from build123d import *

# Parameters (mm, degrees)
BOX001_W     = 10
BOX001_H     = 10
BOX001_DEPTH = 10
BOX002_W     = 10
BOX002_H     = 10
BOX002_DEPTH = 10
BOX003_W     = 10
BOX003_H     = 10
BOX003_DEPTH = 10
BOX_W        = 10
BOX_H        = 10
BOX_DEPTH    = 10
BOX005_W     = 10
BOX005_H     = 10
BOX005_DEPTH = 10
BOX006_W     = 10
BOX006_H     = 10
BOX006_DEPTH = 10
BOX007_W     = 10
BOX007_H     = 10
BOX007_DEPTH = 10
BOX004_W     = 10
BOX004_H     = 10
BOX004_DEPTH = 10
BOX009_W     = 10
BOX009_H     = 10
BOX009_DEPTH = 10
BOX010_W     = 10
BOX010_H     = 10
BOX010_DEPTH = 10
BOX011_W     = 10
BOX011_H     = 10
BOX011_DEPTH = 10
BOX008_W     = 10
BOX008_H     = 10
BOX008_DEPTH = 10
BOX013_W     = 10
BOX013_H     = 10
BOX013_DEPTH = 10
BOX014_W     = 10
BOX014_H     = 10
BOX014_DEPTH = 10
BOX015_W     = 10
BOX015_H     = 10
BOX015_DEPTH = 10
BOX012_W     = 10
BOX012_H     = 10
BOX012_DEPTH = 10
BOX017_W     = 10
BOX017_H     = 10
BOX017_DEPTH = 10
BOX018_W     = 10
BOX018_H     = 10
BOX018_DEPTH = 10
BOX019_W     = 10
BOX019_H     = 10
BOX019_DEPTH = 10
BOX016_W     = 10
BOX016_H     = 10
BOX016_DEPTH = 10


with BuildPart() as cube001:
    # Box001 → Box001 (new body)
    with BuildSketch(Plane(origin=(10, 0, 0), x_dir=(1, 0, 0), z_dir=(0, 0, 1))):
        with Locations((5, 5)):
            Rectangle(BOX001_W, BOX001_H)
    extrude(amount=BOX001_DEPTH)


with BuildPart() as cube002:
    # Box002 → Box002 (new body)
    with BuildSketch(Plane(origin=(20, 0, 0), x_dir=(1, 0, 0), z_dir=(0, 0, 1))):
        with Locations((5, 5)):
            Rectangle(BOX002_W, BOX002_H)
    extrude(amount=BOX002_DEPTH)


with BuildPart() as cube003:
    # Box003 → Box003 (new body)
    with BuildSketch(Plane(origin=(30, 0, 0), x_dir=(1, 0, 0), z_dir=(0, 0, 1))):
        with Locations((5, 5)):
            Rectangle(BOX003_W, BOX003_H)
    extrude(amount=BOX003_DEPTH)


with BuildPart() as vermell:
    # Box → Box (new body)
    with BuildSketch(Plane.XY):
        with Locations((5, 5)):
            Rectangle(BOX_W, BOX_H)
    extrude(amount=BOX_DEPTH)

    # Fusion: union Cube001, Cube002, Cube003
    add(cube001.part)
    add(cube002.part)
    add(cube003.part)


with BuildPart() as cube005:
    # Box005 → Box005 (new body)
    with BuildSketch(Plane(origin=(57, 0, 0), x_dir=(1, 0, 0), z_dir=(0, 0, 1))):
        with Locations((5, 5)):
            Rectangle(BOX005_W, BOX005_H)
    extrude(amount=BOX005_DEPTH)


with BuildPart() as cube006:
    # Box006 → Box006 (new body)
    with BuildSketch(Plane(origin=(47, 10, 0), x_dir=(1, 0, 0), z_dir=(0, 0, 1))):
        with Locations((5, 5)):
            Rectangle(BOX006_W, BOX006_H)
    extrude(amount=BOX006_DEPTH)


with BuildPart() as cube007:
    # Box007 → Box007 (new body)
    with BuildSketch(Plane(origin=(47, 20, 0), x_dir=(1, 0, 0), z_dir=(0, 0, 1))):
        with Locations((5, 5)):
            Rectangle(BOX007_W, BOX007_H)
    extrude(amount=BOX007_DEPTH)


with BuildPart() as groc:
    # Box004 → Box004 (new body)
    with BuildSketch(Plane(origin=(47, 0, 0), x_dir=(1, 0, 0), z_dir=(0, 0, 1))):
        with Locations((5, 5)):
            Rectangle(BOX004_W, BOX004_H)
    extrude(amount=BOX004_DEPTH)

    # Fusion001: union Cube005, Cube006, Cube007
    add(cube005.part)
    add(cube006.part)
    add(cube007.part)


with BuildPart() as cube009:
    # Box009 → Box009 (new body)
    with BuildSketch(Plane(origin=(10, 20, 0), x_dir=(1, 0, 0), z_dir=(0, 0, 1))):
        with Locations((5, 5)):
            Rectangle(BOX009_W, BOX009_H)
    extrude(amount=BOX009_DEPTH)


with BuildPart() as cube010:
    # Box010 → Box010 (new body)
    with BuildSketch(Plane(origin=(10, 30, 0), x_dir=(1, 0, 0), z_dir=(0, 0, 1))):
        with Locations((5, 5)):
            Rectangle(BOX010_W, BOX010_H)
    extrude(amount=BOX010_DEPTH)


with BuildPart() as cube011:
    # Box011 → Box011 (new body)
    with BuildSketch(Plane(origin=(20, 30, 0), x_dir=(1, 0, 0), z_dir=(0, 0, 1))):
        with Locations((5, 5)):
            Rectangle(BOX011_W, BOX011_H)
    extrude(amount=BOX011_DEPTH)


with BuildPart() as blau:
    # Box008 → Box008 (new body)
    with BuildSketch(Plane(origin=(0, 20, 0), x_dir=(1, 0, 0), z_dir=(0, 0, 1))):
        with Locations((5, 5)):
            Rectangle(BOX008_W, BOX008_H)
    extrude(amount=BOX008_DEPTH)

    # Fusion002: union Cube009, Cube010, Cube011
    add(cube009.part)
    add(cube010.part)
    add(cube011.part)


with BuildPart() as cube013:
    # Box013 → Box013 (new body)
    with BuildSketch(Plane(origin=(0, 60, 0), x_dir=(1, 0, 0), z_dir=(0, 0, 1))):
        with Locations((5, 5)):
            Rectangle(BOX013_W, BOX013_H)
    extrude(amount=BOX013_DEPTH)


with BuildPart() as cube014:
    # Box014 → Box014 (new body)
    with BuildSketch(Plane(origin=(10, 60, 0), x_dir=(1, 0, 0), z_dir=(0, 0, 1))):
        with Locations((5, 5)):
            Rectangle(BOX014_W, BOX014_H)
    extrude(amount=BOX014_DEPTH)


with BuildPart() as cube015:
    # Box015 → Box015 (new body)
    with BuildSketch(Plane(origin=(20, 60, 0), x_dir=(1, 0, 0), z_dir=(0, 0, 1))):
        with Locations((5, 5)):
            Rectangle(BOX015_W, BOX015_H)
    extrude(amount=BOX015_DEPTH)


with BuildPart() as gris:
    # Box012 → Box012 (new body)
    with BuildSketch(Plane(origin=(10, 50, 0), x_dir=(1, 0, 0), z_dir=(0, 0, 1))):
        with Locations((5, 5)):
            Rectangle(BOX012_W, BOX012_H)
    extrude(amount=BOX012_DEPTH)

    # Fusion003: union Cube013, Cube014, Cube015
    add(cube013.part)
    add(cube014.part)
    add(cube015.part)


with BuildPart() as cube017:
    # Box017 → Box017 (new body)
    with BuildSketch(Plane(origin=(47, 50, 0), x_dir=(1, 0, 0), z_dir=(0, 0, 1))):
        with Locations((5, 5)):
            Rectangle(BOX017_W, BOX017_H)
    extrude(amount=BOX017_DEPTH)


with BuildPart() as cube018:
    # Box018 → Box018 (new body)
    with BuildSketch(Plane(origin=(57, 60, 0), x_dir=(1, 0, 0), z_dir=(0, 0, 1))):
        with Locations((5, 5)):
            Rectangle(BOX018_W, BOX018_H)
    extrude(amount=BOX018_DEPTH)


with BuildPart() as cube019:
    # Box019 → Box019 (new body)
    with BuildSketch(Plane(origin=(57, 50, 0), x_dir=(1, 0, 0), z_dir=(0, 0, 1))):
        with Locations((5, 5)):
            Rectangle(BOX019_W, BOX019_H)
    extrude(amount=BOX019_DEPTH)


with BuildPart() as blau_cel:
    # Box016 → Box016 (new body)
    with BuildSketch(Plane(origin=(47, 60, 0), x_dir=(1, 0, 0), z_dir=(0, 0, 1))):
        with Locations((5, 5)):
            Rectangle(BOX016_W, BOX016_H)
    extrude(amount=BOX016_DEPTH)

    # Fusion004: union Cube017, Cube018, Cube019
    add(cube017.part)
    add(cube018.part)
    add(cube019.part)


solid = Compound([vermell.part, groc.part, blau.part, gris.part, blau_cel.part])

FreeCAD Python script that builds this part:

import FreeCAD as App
import Part
import Sketcher
from FreeCAD import Vector
Q = App.Units.Quantity


def add_polygon(sketch, points):
    """Adds a closed chain of lines whose ends are joined by coincident constraints."""
    first, n = sketch.GeometryCount, len(points)
    for a, b in zip(points, points[1:] + points[:1]):
        sketch.addGeometry(Part.LineSegment(App.Vector(*a, 0), App.Vector(*b, 0)), False)
    for i in range(n):
        sketch.addConstraint(Sketcher.Constraint("Coincident", first + i, 2, first + (i + 1) % n, 1))

doc = App.newDocument("Part")
body = doc.addObject("PartDesign::Body", "Body")

# Sketch on XY plane
sketch1 = body.newObject("Sketcher::SketchObject", "Sketch")
sketch1.AttachmentSupport = (doc.getObject("XY_Plane"), [""])
sketch1.MapMode = "FlatFace"
add_polygon(sketch1, [(10, 10), (10, 0), (20, 0), (20, 10)])  # lines 0-3
sketch1.addConstraint([
    Sketcher.Constraint("Vertical", 0),
    Sketcher.Constraint("Horizontal", 1),
    Sketcher.Constraint("Vertical", 2),
    Sketcher.Constraint("Horizontal", 3),
    Sketcher.Constraint("PointOnObject", 0, 2, -1),
    Sketcher.Constraint("Equal", 3, 0),
    Sketcher.Constraint("DistanceX", 1, 1, 1, 2, Q("10 mm")),
    Sketcher.Constraint("DistanceX", -1, 1, 0, 2, Q("10 mm")),
])
pad1 = body.newObject("PartDesign::Pad", "Pad")
pad1.Profile = sketch1
pad1.Length = 10
body2 = doc.addObject("PartDesign::Body", "Body001")

# Sketch on XY plane
sketch2 = body2.newObject("Sketcher::SketchObject", "Sketch001")
sketch2.AttachmentSupport = (doc.getObject("XY_Plane001"), [""])
sketch2.MapMode = "FlatFace"
add_polygon(sketch2, [(20, 10), (20, 0), (30, 0), (30, 10)])  # lines 0-3
sketch2.addConstraint([
    Sketcher.Constraint("Vertical", 0),
    Sketcher.Constraint("Horizontal", 1),
    Sketcher.Constraint("Vertical", 2),
    Sketcher.Constraint("Horizontal", 3),
    Sketcher.Constraint("PointOnObject", 0, 2, -1),
    Sketcher.Constraint("Equal", 3, 0),
    Sketcher.Constraint("DistanceX", 1, 1, 1, 2, Q("10 mm")),
    Sketcher.Constraint("DistanceX", -1, 1, 0, 2, Q("20 mm")),
])
pad2 = body2.newObject("PartDesign::Pad", "Pad001")
pad2.Profile = sketch2
pad2.Length = 10
body3 = doc.addObject("PartDesign::Body", "Body002")

# Sketch on XY plane
sketch3 = body3.newObject("Sketcher::SketchObject", "Sketch002")
sketch3.AttachmentSupport = (doc.getObject("XY_Plane002"), [""])
sketch3.MapMode = "FlatFace"
add_polygon(sketch3, [(30, 10), (30, 0), (40, 0), (40, 10)])  # lines 0-3
sketch3.addConstraint([
    Sketcher.Constraint("Vertical", 0),
    Sketcher.Constraint("Horizontal", 1),
    Sketcher.Constraint("Vertical", 2),
    Sketcher.Constraint("Horizontal", 3),
    Sketcher.Constraint("PointOnObject", 0, 2, -1),
    Sketcher.Constraint("Equal", 3, 0),
    Sketcher.Constraint("DistanceX", 1, 1, 1, 2, Q("10 mm")),
    Sketcher.Constraint("DistanceX", -1, 1, 0, 2, Q("30 mm")),
])
pad3 = body3.newObject("PartDesign::Pad", "Pad002")
pad3.Profile = sketch3
pad3.Length = 10
body4 = doc.addObject("PartDesign::Body", "Body003")

# Sketch on XY plane
sketch4 = body4.newObject("Sketcher::SketchObject", "Sketch003")
sketch4.AttachmentSupport = (doc.getObject("XY_Plane003"), [""])
sketch4.MapMode = "FlatFace"
add_polygon(sketch4, [(0, 10), (0, 0), (10, 0), (10, 10)])  # lines 0-3
sketch4.addConstraint([
    Sketcher.Constraint("Vertical", 0),
    Sketcher.Constraint("Horizontal", 1),
    Sketcher.Constraint("Vertical", 2),
    Sketcher.Constraint("Horizontal", 3),
    Sketcher.Constraint("Coincident", 0, 2, -1, 1),
    Sketcher.Constraint("Equal", 3, 0),
    Sketcher.Constraint("DistanceX", 1, 1, 1, 2, Q("10 mm")),
])
pad4 = body4.newObject("PartDesign::Pad", "Pad003")
pad4.Profile = sketch4
pad4.Length = 10
doc.recompute()

boolean = body4.newObject("PartDesign::Boolean", "Boolean")
boolean.Type = "Fuse"
boolean.addObjects([body])
doc.recompute()

boolean2 = body4.newObject("PartDesign::Boolean", "Boolean001")
boolean2.Type = "Fuse"
boolean2.addObjects([body2])
doc.recompute()

boolean3 = body4.newObject("PartDesign::Boolean", "Boolean002")
boolean3.Type = "Fuse"
boolean3.addObjects([body3])
body5 = doc.addObject("PartDesign::Body", "Body004")

# Sketch on XY plane
sketch5 = body5.newObject("Sketcher::SketchObject", "Sketch004")
sketch5.AttachmentSupport = (doc.getObject("XY_Plane004"), [""])
sketch5.MapMode = "FlatFace"
add_polygon(sketch5, [(57, 10), (57, 0), (67, 0), (67, 10)])  # lines 0-3
sketch5.addConstraint([
    Sketcher.Constraint("Vertical", 0),
    Sketcher.Constraint("Horizontal", 1),
    Sketcher.Constraint("Vertical", 2),
    Sketcher.Constraint("Horizontal", 3),
    Sketcher.Constraint("PointOnObject", 0, 2, -1),
    Sketcher.Constraint("Equal", 3, 0),
    Sketcher.Constraint("DistanceX", 1, 1, 1, 2, Q("10 mm")),
    Sketcher.Constraint("DistanceX", -1, 1, 0, 2, Q("57 mm")),
])
pad5 = body5.newObject("PartDesign::Pad", "Pad004")
pad5.Profile = sketch5
pad5.Length = 10
body6 = doc.addObject("PartDesign::Body", "Body005")

# Sketch on XY plane
sketch6 = body6.newObject("Sketcher::SketchObject", "Sketch005")
sketch6.AttachmentSupport = (doc.getObject("XY_Plane005"), [""])
sketch6.MapMode = "FlatFace"
add_polygon(sketch6, [(47, 20), (47, 10), (57, 10), (57, 20)])  # lines 0-3
sketch6.addConstraint([
    Sketcher.Constraint("Vertical", 0),
    Sketcher.Constraint("Horizontal", 1),
    Sketcher.Constraint("Vertical", 2),
    Sketcher.Constraint("Horizontal", 3),
    Sketcher.Constraint("Equal", 3, 0),
    Sketcher.Constraint("DistanceX", 1, 1, 1, 2, Q("10 mm")),
    Sketcher.Constraint("DistanceX", -1, 1, 0, 2, Q("47 mm")),
    Sketcher.Constraint("DistanceY", -1, 1, 0, 2, Q("10 mm")),
])
pad6 = body6.newObject("PartDesign::Pad", "Pad005")
pad6.Profile = sketch6
pad6.Length = 10
body7 = doc.addObject("PartDesign::Body", "Body006")

# Sketch on XY plane
sketch7 = body7.newObject("Sketcher::SketchObject", "Sketch006")
sketch7.AttachmentSupport = (doc.getObject("XY_Plane006"), [""])
sketch7.MapMode = "FlatFace"
add_polygon(sketch7, [(47, 30), (47, 20), (57, 20), (57, 30)])  # lines 0-3
sketch7.addConstraint([
    Sketcher.Constraint("Vertical", 0),
    Sketcher.Constraint("Horizontal", 1),
    Sketcher.Constraint("Vertical", 2),
    Sketcher.Constraint("Horizontal", 3),
    Sketcher.Constraint("Equal", 3, 0),
    Sketcher.Constraint("DistanceX", 1, 1, 1, 2, Q("10 mm")),
    Sketcher.Constraint("DistanceX", -1, 1, 0, 2, Q("47 mm")),
    Sketcher.Constraint("DistanceY", -1, 1, 0, 2, Q("20 mm")),
])
pad7 = body7.newObject("PartDesign::Pad", "Pad006")
pad7.Profile = sketch7
pad7.Length = 10
body8 = doc.addObject("PartDesign::Body", "Body007")

# Sketch on XY plane
sketch8 = body8.newObject("Sketcher::SketchObject", "Sketch007")
sketch8.AttachmentSupport = (doc.getObject("XY_Plane007"), [""])
sketch8.MapMode = "FlatFace"
add_polygon(sketch8, [(47, 10), (47, 0), (57, 0), (57, 10)])  # lines 0-3
sketch8.addConstraint([
    Sketcher.Constraint("Vertical", 0),
    Sketcher.Constraint("Horizontal", 1),
    Sketcher.Constraint("Vertical", 2),
    Sketcher.Constraint("Horizontal", 3),
    Sketcher.Constraint("PointOnObject", 0, 2, -1),
    Sketcher.Constraint("Equal", 3, 0),
    Sketcher.Constraint("DistanceX", 1, 1, 1, 2, Q("10 mm")),
    Sketcher.Constraint("DistanceX", -1, 1, 0, 2, Q("47 mm")),
])
pad8 = body8.newObject("PartDesign::Pad", "Pad007")
pad8.Profile = sketch8
pad8.Length = 10
doc.recompute()

boolean4 = body8.newObject("PartDesign::Boolean", "Boolean003")
boolean4.Type = "Fuse"
boolean4.addObjects([body5])
doc.recompute()

boolean5 = body8.newObject("PartDesign::Boolean", "Boolean004")
boolean5.Type = "Fuse"
boolean5.addObjects([body6])
doc.recompute()

boolean6 = body8.newObject("PartDesign::Boolean", "Boolean005")
boolean6.Type = "Fuse"
boolean6.addObjects([body7])
body9 = doc.addObject("PartDesign::Body", "Body008")

# Sketch on XY plane
sketch9 = body9.newObject("Sketcher::SketchObject", "Sketch008")
sketch9.AttachmentSupport = (doc.getObject("XY_Plane008"), [""])
sketch9.MapMode = "FlatFace"
add_polygon(sketch9, [(10, 30), (10, 20), (20, 20), (20, 30)])  # lines 0-3
sketch9.addConstraint([
    Sketcher.Constraint("Vertical", 0),
    Sketcher.Constraint("Horizontal", 1),
    Sketcher.Constraint("Vertical", 2),
    Sketcher.Constraint("Horizontal", 3),
    Sketcher.Constraint("Equal", 3, 0),
    Sketcher.Constraint("DistanceX", 1, 1, 1, 2, Q("10 mm")),
    Sketcher.Constraint("DistanceX", -1, 1, 0, 2, Q("10 mm")),
    Sketcher.Constraint("DistanceY", -1, 1, 0, 2, Q("20 mm")),
])
pad9 = body9.newObject("PartDesign::Pad", "Pad008")
pad9.Profile = sketch9
pad9.Length = 10
body10 = doc.addObject("PartDesign::Body", "Body009")

# Sketch on XY plane
sketch10 = body10.newObject("Sketcher::SketchObject", "Sketch009")
sketch10.AttachmentSupport = (doc.getObject("XY_Plane009"), [""])
sketch10.MapMode = "FlatFace"
add_polygon(sketch10, [(10, 40), (10, 30), (20, 30), (20, 40)])  # lines 0-3
sketch10.addConstraint([
    Sketcher.Constraint("Vertical", 0),
    Sketcher.Constraint("Horizontal", 1),
    Sketcher.Constraint("Vertical", 2),
    Sketcher.Constraint("Horizontal", 3),
    Sketcher.Constraint("Equal", 3, 0),
    Sketcher.Constraint("DistanceX", 1, 1, 1, 2, Q("10 mm")),
    Sketcher.Constraint("DistanceX", -1, 1, 0, 2, Q("10 mm")),
    Sketcher.Constraint("DistanceY", -1, 1, 0, 2, Q("30 mm")),
])
pad10 = body10.newObject("PartDesign::Pad", "Pad009")
pad10.Profile = sketch10
pad10.Length = 10
body11 = doc.addObject("PartDesign::Body", "Body010")

# Sketch on XY plane
sketch11 = body11.newObject("Sketcher::SketchObject", "Sketch010")
sketch11.AttachmentSupport = (doc.getObject("XY_Plane010"), [""])
sketch11.MapMode = "FlatFace"
add_polygon(sketch11, [(20, 40), (20, 30), (30, 30), (30, 40)])  # lines 0-3
sketch11.addConstraint([
    Sketcher.Constraint("Vertical", 0),
    Sketcher.Constraint("Horizontal", 1),
    Sketcher.Constraint("Vertical", 2),
    Sketcher.Constraint("Horizontal", 3),
    Sketcher.Constraint("Equal", 3, 0),
    Sketcher.Constraint("DistanceX", 1, 1, 1, 2, Q("10 mm")),
    Sketcher.Constraint("DistanceX", -1, 1, 0, 2, Q("20 mm")),
    Sketcher.Constraint("DistanceY", -1, 1, 0, 2, Q("30 mm")),
])
pad11 = body11.newObject("PartDesign::Pad", "Pad010")
pad11.Profile = sketch11
pad11.Length = 10
body12 = doc.addObject("PartDesign::Body", "Body011")

# Sketch on XY plane
sketch12 = body12.newObject("Sketcher::SketchObject", "Sketch011")
sketch12.AttachmentSupport = (doc.getObject("XY_Plane011"), [""])
sketch12.MapMode = "FlatFace"
add_polygon(sketch12, [(0, 30), (0, 20), (10, 20), (10, 30)])  # lines 0-3
sketch12.addConstraint([
    Sketcher.Constraint("Vertical", 0),
    Sketcher.Constraint("Horizontal", 1),
    Sketcher.Constraint("Vertical", 2),
    Sketcher.Constraint("Horizontal", 3),
    Sketcher.Constraint("PointOnObject", 0, 2, -2),
    Sketcher.Constraint("Equal", 3, 0),
    Sketcher.Constraint("DistanceX", 1, 1, 1, 2, Q("10 mm")),
    Sketcher.Constraint("DistanceY", -1, 1, 0, 2, Q("20 mm")),
])
pad12 = body12.newObject("PartDesign::Pad", "Pad011")
pad12.Profile = sketch12
pad12.Length = 10
doc.recompute()

boolean7 = body12.newObject("PartDesign::Boolean", "Boolean006")
boolean7.Type = "Fuse"
boolean7.addObjects([body9])
doc.recompute()

boolean8 = body12.newObject("PartDesign::Boolean", "Boolean007")
boolean8.Type = "Fuse"
boolean8.addObjects([body10])
doc.recompute()

boolean9 = body12.newObject("PartDesign::Boolean", "Boolean008")
boolean9.Type = "Fuse"
boolean9.addObjects([body11])
body13 = doc.addObject("PartDesign::Body", "Body012")

# Sketch on XY plane
sketch13 = body13.newObject("Sketcher::SketchObject", "Sketch012")
sketch13.AttachmentSupport = (doc.getObject("XY_Plane012"), [""])
sketch13.MapMode = "FlatFace"
add_polygon(sketch13, [(0, 70), (0, 60), (10, 60), (10, 70)])  # lines 0-3
sketch13.addConstraint([
    Sketcher.Constraint("Vertical", 0),
    Sketcher.Constraint("Horizontal", 1),
    Sketcher.Constraint("Vertical", 2),
    Sketcher.Constraint("Horizontal", 3),
    Sketcher.Constraint("PointOnObject", 0, 2, -2),
    Sketcher.Constraint("Equal", 3, 0),
    Sketcher.Constraint("DistanceX", 1, 1, 1, 2, Q("10 mm")),
    Sketcher.Constraint("DistanceY", -1, 1, 0, 2, Q("60 mm")),
])
pad13 = body13.newObject("PartDesign::Pad", "Pad012")
pad13.Profile = sketch13
pad13.Length = 10
body14 = doc.addObject("PartDesign::Body", "Body013")

# Sketch on XY plane
sketch14 = body14.newObject("Sketcher::SketchObject", "Sketch013")
sketch14.AttachmentSupport = (doc.getObject("XY_Plane013"), [""])
sketch14.MapMode = "FlatFace"
add_polygon(sketch14, [(10, 70), (10, 60), (20, 60), (20, 70)])  # lines 0-3
sketch14.addConstraint([
    Sketcher.Constraint("Vertical", 0),
    Sketcher.Constraint("Horizontal", 1),
    Sketcher.Constraint("Vertical", 2),
    Sketcher.Constraint("Horizontal", 3),
    Sketcher.Constraint("Equal", 3, 0),
    Sketcher.Constraint("DistanceX", 1, 1, 1, 2, Q("10 mm")),
    Sketcher.Constraint("DistanceX", -1, 1, 0, 2, Q("10 mm")),
    Sketcher.Constraint("DistanceY", -1, 1, 0, 2, Q("60 mm")),
])
pad14 = body14.newObject("PartDesign::Pad", "Pad013")
pad14.Profile = sketch14
pad14.Length = 10
body15 = doc.addObject("PartDesign::Body", "Body014")

# Sketch on XY plane
sketch15 = body15.newObject("Sketcher::SketchObject", "Sketch014")
sketch15.AttachmentSupport = (doc.getObject("XY_Plane014"), [""])
sketch15.MapMode = "FlatFace"
add_polygon(sketch15, [(20, 70), (20, 60), (30, 60), (30, 70)])  # lines 0-3
sketch15.addConstraint([
    Sketcher.Constraint("Vertical", 0),
    Sketcher.Constraint("Horizontal", 1),
    Sketcher.Constraint("Vertical", 2),
    Sketcher.Constraint("Horizontal", 3),
    Sketcher.Constraint("Equal", 3, 0),
    Sketcher.Constraint("DistanceX", 1, 1, 1, 2, Q("10 mm")),
    Sketcher.Constraint("DistanceX", -1, 1, 0, 2, Q("20 mm")),
    Sketcher.Constraint("DistanceY", -1, 1, 0, 2, Q("60 mm")),
])
pad15 = body15.newObject("PartDesign::Pad", "Pad014")
pad15.Profile = sketch15
pad15.Length = 10
body16 = doc.addObject("PartDesign::Body", "Body015")
body16.AllowCompound = True

# Sketch on XY plane
sketch16 = body16.newObject("Sketcher::SketchObject", "Sketch015")
sketch16.AttachmentSupport = (doc.getObject("XY_Plane015"), [""])
sketch16.MapMode = "FlatFace"
add_polygon(sketch16, [(10, 60), (10, 50), (20, 50), (20, 60)])  # lines 0-3
sketch16.addConstraint([
    Sketcher.Constraint("Vertical", 0),
    Sketcher.Constraint("Horizontal", 1),
    Sketcher.Constraint("Vertical", 2),
    Sketcher.Constraint("Horizontal", 3),
    Sketcher.Constraint("Equal", 3, 0),
    Sketcher.Constraint("DistanceX", 1, 1, 1, 2, Q("10 mm")),
    Sketcher.Constraint("DistanceX", -1, 1, 0, 2, Q("10 mm")),
    Sketcher.Constraint("DistanceY", -1, 1, 0, 2, Q("50 mm")),
])
pad16 = body16.newObject("PartDesign::Pad", "Pad015")
pad16.Profile = sketch16
pad16.Length = 10
doc.recompute()

boolean10 = body16.newObject("PartDesign::Boolean", "Boolean009")
boolean10.Type = "Fuse"
boolean10.addObjects([body13])
doc.recompute()

boolean11 = body16.newObject("PartDesign::Boolean", "Boolean010")
boolean11.Type = "Fuse"
boolean11.addObjects([body14])
doc.recompute()

boolean12 = body16.newObject("PartDesign::Boolean", "Boolean011")
boolean12.Type = "Fuse"
boolean12.addObjects([body15])
body17 = doc.addObject("PartDesign::Body", "Body016")

# Sketch on XY plane
sketch17 = body17.newObject("Sketcher::SketchObject", "Sketch016")
sketch17.AttachmentSupport = (doc.getObject("XY_Plane016"), [""])
sketch17.MapMode = "FlatFace"
add_polygon(sketch17, [(47, 60), (47, 50), (57, 50), (57, 60)])  # lines 0-3
sketch17.addConstraint([
    Sketcher.Constraint("Vertical", 0),
    Sketcher.Constraint("Horizontal", 1),
    Sketcher.Constraint("Vertical", 2),
    Sketcher.Constraint("Horizontal", 3),
    Sketcher.Constraint("Equal", 3, 0),
    Sketcher.Constraint("DistanceX", 1, 1, 1, 2, Q("10 mm")),
    Sketcher.Constraint("DistanceX", -1, 1, 0, 2, Q("47 mm")),
    Sketcher.Constraint("DistanceY", -1, 1, 0, 2, Q("50 mm")),
])
pad17 = body17.newObject("PartDesign::Pad", "Pad016")
pad17.Profile = sketch17
pad17.Length = 10
body18 = doc.addObject("PartDesign::Body", "Body017")

# Sketch on XY plane
sketch18 = body18.newObject("Sketcher::SketchObject", "Sketch017")
sketch18.AttachmentSupport = (doc.getObject("XY_Plane017"), [""])
sketch18.MapMode = "FlatFace"
add_polygon(sketch18, [(57, 70), (57, 60), (67, 60), (67, 70)])  # lines 0-3
sketch18.addConstraint([
    Sketcher.Constraint("Vertical", 0),
    Sketcher.Constraint("Horizontal", 1),
    Sketcher.Constraint("Vertical", 2),
    Sketcher.Constraint("Horizontal", 3),
    Sketcher.Constraint("Equal", 3, 0),
    Sketcher.Constraint("DistanceX", 1, 1, 1, 2, Q("10 mm")),
    Sketcher.Constraint("DistanceX", -1, 1, 0, 2, Q("57 mm")),
    Sketcher.Constraint("DistanceY", -1, 1, 0, 2, Q("60 mm")),
])
pad18 = body18.newObject("PartDesign::Pad", "Pad017")
pad18.Profile = sketch18
pad18.Length = 10
body19 = doc.addObject("PartDesign::Body", "Body018")

# Sketch on XY plane
sketch19 = body19.newObject("Sketcher::SketchObject", "Sketch018")
sketch19.AttachmentSupport = (doc.getObject("XY_Plane018"), [""])
sketch19.MapMode = "FlatFace"
add_polygon(sketch19, [(57, 60), (57, 50), (67, 50), (67, 60)])  # lines 0-3
sketch19.addConstraint([
    Sketcher.Constraint("Vertical", 0),
    Sketcher.Constraint("Horizontal", 1),
    Sketcher.Constraint("Vertical", 2),
    Sketcher.Constraint("Horizontal", 3),
    Sketcher.Constraint("Equal", 3, 0),
    Sketcher.Constraint("DistanceX", 1, 1, 1, 2, Q("10 mm")),
    Sketcher.Constraint("DistanceX", -1, 1, 0, 2, Q("57 mm")),
    Sketcher.Constraint("DistanceY", -1, 1, 0, 2, Q("50 mm")),
])
pad19 = body19.newObject("PartDesign::Pad", "Pad018")
pad19.Profile = sketch19
pad19.Length = 10
body20 = doc.addObject("PartDesign::Body", "Body019")

# Sketch on XY plane
sketch20 = body20.newObject("Sketcher::SketchObject", "Sketch019")
sketch20.AttachmentSupport = (doc.getObject("XY_Plane019"), [""])
sketch20.MapMode = "FlatFace"
add_polygon(sketch20, [(47, 70), (47, 60), (57, 60), (57, 70)])  # lines 0-3
sketch20.addConstraint([
    Sketcher.Constraint("Vertical", 0),
    Sketcher.Constraint("Horizontal", 1),
    Sketcher.Constraint("Vertical", 2),
    Sketcher.Constraint("Horizontal", 3),
    Sketcher.Constraint("Equal", 3, 0),
    Sketcher.Constraint("DistanceX", 1, 1, 1, 2, Q("10 mm")),
    Sketcher.Constraint("DistanceX", -1, 1, 0, 2, Q("47 mm")),
    Sketcher.Constraint("DistanceY", -1, 1, 0, 2, Q("60 mm")),
])
pad20 = body20.newObject("PartDesign::Pad", "Pad019")
pad20.Profile = sketch20
pad20.Length = 10
doc.recompute()

boolean13 = body20.newObject("PartDesign::Boolean", "Boolean012")
boolean13.Type = "Fuse"
boolean13.addObjects([body17])
doc.recompute()

boolean14 = body20.newObject("PartDesign::Boolean", "Boolean013")
boolean14.Type = "Fuse"
boolean14.addObjects([body18])
doc.recompute()

boolean15 = body20.newObject("PartDesign::Boolean", "Boolean014")
boolean15.Type = "Fuse"
boolean15.addObjects([body19])

doc.recompute()
